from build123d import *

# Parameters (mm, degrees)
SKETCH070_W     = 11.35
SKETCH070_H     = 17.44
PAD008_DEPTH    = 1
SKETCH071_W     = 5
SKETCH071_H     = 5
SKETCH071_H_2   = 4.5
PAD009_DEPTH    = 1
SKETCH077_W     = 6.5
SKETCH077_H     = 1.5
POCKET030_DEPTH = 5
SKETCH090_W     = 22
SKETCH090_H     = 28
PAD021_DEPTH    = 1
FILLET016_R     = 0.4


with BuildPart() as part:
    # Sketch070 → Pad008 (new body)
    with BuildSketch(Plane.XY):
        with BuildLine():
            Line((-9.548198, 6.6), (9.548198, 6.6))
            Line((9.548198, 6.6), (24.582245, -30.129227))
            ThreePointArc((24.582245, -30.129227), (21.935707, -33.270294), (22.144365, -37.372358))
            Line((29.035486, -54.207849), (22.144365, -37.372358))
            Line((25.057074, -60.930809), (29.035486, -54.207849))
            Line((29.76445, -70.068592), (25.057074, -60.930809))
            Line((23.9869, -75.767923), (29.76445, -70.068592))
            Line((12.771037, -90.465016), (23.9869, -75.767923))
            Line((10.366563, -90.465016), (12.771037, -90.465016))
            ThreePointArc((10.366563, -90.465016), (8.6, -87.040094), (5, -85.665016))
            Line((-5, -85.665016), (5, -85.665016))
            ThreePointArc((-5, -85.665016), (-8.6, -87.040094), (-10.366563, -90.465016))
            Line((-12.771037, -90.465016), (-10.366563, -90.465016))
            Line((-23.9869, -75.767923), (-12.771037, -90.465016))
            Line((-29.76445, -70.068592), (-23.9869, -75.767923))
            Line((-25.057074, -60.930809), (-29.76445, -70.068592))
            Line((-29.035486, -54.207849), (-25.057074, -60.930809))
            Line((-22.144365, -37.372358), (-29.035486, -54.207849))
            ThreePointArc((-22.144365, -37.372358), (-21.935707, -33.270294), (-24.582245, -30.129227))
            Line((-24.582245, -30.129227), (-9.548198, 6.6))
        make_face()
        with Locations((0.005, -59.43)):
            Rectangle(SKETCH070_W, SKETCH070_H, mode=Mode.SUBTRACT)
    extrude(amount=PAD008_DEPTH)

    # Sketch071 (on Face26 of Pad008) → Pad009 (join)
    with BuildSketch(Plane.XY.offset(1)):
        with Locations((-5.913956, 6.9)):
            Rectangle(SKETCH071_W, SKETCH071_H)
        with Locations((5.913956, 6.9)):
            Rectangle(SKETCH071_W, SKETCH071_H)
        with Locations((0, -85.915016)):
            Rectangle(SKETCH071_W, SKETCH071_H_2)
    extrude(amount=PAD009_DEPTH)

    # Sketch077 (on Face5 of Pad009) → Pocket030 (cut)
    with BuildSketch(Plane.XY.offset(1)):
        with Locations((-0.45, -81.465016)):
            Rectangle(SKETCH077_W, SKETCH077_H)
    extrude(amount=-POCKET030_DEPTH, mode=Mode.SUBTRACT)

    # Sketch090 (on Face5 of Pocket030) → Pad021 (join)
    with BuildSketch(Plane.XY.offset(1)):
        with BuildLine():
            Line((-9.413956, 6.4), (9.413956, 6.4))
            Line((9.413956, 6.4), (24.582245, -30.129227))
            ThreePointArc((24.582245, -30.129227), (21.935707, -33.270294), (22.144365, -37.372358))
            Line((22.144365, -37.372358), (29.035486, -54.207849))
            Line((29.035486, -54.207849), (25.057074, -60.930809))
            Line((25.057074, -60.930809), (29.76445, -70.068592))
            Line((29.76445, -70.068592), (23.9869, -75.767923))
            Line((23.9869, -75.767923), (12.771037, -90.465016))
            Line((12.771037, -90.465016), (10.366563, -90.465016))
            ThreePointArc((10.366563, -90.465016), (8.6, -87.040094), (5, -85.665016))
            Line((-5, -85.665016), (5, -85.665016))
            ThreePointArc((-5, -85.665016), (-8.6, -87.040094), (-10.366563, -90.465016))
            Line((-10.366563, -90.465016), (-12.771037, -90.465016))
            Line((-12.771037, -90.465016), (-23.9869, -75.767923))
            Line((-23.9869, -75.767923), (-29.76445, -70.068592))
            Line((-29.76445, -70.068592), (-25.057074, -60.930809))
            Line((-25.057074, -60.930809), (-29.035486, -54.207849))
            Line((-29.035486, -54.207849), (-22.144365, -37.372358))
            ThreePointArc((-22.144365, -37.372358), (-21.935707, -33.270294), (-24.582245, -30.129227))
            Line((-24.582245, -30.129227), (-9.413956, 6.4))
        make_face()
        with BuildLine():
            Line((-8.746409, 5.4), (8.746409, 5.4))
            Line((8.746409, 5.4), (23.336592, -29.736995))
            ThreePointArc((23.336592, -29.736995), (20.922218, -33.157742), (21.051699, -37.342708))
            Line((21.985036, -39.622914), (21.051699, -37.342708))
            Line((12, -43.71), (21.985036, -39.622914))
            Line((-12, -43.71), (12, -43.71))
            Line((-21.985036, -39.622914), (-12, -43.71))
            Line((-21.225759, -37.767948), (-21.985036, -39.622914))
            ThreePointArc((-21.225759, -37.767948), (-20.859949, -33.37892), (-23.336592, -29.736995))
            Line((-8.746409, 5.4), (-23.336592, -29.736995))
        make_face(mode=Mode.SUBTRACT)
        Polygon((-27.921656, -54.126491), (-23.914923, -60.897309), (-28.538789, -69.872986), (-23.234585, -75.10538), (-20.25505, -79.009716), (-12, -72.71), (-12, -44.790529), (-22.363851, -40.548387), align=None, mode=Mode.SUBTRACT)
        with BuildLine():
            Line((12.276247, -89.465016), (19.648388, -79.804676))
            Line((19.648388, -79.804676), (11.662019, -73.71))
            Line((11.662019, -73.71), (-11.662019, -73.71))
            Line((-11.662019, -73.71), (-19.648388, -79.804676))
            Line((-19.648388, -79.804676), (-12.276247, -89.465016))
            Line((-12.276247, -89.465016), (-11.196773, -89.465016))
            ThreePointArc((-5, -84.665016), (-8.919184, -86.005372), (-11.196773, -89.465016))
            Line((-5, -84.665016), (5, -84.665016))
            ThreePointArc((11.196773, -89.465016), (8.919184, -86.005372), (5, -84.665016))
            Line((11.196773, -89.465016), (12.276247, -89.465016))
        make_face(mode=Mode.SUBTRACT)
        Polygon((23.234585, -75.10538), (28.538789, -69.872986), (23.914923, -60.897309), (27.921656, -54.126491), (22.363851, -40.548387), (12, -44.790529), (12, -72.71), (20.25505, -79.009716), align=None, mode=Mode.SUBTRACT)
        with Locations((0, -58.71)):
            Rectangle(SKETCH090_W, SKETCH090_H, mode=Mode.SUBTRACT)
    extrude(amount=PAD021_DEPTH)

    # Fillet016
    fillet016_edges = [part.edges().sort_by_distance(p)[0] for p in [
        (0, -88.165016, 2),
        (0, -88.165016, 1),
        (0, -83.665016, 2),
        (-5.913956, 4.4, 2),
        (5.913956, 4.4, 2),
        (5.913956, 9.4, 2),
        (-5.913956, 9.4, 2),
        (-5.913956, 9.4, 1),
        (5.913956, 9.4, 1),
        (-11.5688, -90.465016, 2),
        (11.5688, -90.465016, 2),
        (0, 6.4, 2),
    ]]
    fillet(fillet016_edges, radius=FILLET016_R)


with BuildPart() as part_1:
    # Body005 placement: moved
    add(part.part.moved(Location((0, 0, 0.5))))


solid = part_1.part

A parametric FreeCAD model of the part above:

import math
import FreeCAD as App
import Part
import Sketcher
Q = App.Units.Quantity


def edges_at(feature, points):
    """Names of the edges that pass closest to the given points."""
    edges = feature.Shape.Edges
    near = lambda p: min(range(len(edges)), key=lambda i: edges[i].distToShape(Part.Vertex(*p))[0])
    return sorted({f"Edge{near(p) + 1}" for p in points})

doc = App.newDocument("Part")
body = doc.addObject("PartDesign::Body", "Body")

# Sketch on XY plane
sketch1 = doc.addObject("Sketcher::SketchObject", "Sketch")
body.addObject(sketch1)
sketch1.AttachmentSupport = (doc.XY_Plane, [""])
sketch1.MapMode = "FlatFace"
sketch1.addGeometry(Part.LineSegment(App.Vector(9.548198, 6.6, 0), App.Vector(-9.548198, 6.6, 0)), False)
sketch1.addGeometry(Part.LineSegment(App.Vector(-9.548198, 6.6, 0), App.Vector(-24.582245, -30.129227, 0)), False)
sketch1.addGeometry(Part.ArcOfCircle(Part.Circle(App.Vector(-27.243144, -35.056662, 0), App.Vector(0, 0, 1), 5.6), math.radians(-24.425975), math.radians(61.630197)), False)
sketch1.addGeometry(Part.LineSegment(App.Vector(-22.144365, -37.372358, 0), App.Vector(-29.035486, -54.207849, 0)), False)
sketch1.addGeometry(Part.LineSegment(App.Vector(-29.035486, -54.207849, 0), App.Vector(-25.057074, -60.930809, 0)), False)
sketch1.addGeometry(Part.LineSegment(App.Vector(-25.057074, -60.930809, 0), App.Vector(-29.76445, -70.068592, 0)), False)
sketch1.addGeometry(Part.LineSegment(App.Vector(-29.76445, -70.068592, 0), App.Vector(-23.9869, -75.767923, 0)), False)
sketch1.addGeometry(Part.LineSegment(App.Vector(-23.9869, -75.767923, 0), App.Vector(-12.771037, -90.465016, 0)), False)
sketch1.addGeometry(Part.LineSegment(App.Vector(-12.771037, -90.465016, 0), App.Vector(-10.366563, -90.465016, 0)), False)
sketch1.addGeometry(Part.ArcOfCircle(Part.Circle(App.Vector(-4.999999, -91.065016, 0), App.Vector(0, 0, 1), 5.4), math.radians(90.000006), math.radians(173.620625)), False)
sketch1.addGeometry(Part.LineSegment(App.Vector(-5, -85.665016, 0), App.Vector(5, -85.665016, 0)), False)
sketch1.addGeometry(Part.ArcOfCircle(Part.Circle(App.Vector(4.999999, -91.065016, 0), App.Vector(0, 0, 1), 5.4), math.radians(6.379375), math.radians(89.999994)), False)
sketch1.addGeometry(Part.LineSegment(App.Vector(10.366563, -90.465016, 0), App.Vector(12.771037, -90.465016, 0)), False)
sketch1.addGeometry(Part.LineSegment(App.Vector(12.771037, -90.465016, 0), App.Vector(23.9869, -75.767923, 0)), False)
sketch1.addGeometry(Part.LineSegment(App.Vector(23.9869, -75.767923, 0), App.Vector(29.76445, -70.068592, 0)), False)
sketch1.addGeometry(Part.LineSegment(App.Vector(29.76445, -70.068592, 0), App.Vector(25.057074, -60.930809, 0)), False)
sketch1.addGeometry(Part.LineSegment(App.Vector(25.057074, -60.930809, 0), App.Vector(29.035486, -54.207849, 0)), False)
sketch1.addGeometry(Part.LineSegment(App.Vector(29.035486, -54.207849, 0), App.Vector(22.144365, -37.372358, 0)), False)
sketch1.addGeometry(Part.ArcOfCircle(Part.Circle(App.Vector(27.243144, -35.056662, 0), App.Vector(0, 0, 1), 5.6), math.radians(118.369803), math.radians(204.425975)), False)
sketch1.addGeometry(Part.LineSegment(App.Vector(24.582245, -30.129227, 0), App.Vector(9.548198, 6.6, 0)), False)
sketch1.addGeometry(Part.LineSegment(App.Vector(-5.67, -68.15, 0), App.Vector(-5.67, -50.71, 0)), False)
sketch1.addGeometry(Part.LineSegment(App.Vector(-5.67, -50.71, 0), App.Vector(5.68, -50.71, 0)), False)
sketch1.addGeometry(Part.LineSegment(App.Vector(5.68, -50.71, 0), App.Vector(5.68, -68.15, 0)), False)
sketch1.addGeometry(Part.LineSegment(App.Vector(5.68, -68.15, 0), App.Vector(-5.67, -68.15, 0)), False)
sketch1.addConstraint(Sketcher.Constraint("Coincident", 0, 2, 1, 1))
sketch1.addConstraint(Sketcher.Constraint("Coincident", 1, 2, 2, 2))
sketch1.addConstraint(Sketcher.Constraint("Coincident", 2, 1, 3, 1))
sketch1.addConstraint(Sketcher.Constraint("Coincident", 3, 2, 4, 1))
sketch1.addConstraint(Sketcher.Constraint("Coincident", 4, 2, 5, 1))
sketch1.addConstraint(Sketcher.Constraint("Coincident", 5, 2, 6, 1))
sketch1.addConstraint(Sketcher.Constraint("Coincident", 6, 2, 7, 1))
sketch1.addConstraint(Sketcher.Constraint("Coincident", 7, 2, 8, 1))
sketch1.addConstraint(Sketcher.Constraint("Coincident", 8, 2, 9, 2))
sketch1.addConstraint(Sketcher.Constraint("Tangent", 9, 1, 10, 1))
sketch1.addConstraint(Sketcher.Constraint("Tangent", 10, 2, 11, 2))
sketch1.addConstraint(Sketcher.Constraint("Coincident", 11, 1, 12, 1))
sketch1.addConstraint(Sketcher.Constraint("Coincident", 12, 2, 13, 1))
sketch1.addConstraint(Sketcher.Constraint("Coincident", 13, 2, 14, 1))
sketch1.addConstraint(Sketcher.Constraint("Coincident", 14, 2, 15, 1))
sketch1.addConstraint(Sketcher.Constraint("Coincident", 15, 2, 16, 1))
sketch1.addConstraint(Sketcher.Constraint("Coincident", 16, 2, 17, 1))
sketch1.addConstraint(Sketcher.Constraint("Coincident", 17, 2, 18, 2))
sketch1.addConstraint(Sketcher.Constraint("Coincident", 18, 1, 19, 1))
sketch1.addConstraint(Sketcher.Constraint("Coincident", 19, 2, 0, 1))
sketch1.addConstraint(Sketcher.Constraint("Coincident", 20, 2, 21, 1))
sketch1.addConstraint(Sketcher.Constraint("Coincident", 21, 2, 22, 1))
sketch1.addConstraint(Sketcher.Constraint("Coincident", 22, 2, 23, 1))
sketch1.addConstraint(Sketcher.Constraint("Coincident", 23, 2, 20, 1))
sketch1.addConstraint(Sketcher.Constraint("Horizontal", 0))
sketch1.addConstraint(Sketcher.Constraint("Horizontal", 8))
sketch1.addConstraint(Sketcher.Constraint("Horizontal", 10))
sketch1.addConstraint(Sketcher.Constraint("Horizontal", 12))
sketch1.addConstraint(Sketcher.Constraint("Vertical", 20))
sketch1.addConstraint(Sketcher.Constraint("Horizontal", 21))
sketch1.addConstraint(Sketcher.Constraint("Vertical", 22))
sketch1.addConstraint(Sketcher.Constraint("Horizontal", 23))
sketch1.addConstraint(Sketcher.Constraint("Equal", 9, 11))
sketch1.addConstraint(Sketcher.Constraint("Equal", 2, 18))
sketch1.addConstraint(Sketcher.Constraint("Symmetric", 2, 3, 18, 3, -2))
sketch1.addConstraint(Sketcher.Constraint("Symmetric", 8, 2, 11, 1, -2))
sketch1.addConstraint(Sketcher.Constraint("Symmetric", 6, 2, 13, 2, -2))
sketch1.addConstraint(Sketcher.Constraint("Symmetric", 5, 2, 14, 2, -2))
sketch1.addConstraint(Sketcher.Constraint("Symmetric", 4, 2, 15, 2, -2))
sketch1.addConstraint(Sketcher.Constraint("Symmetric", 3, 2, 16, 2, -2))
sketch1.addConstraint(Sketcher.Constraint("Parallel", 1, 3))
sketch1.addConstraint(Sketcher.Constraint("Parallel", 17, 19))
sketch1.addConstraint(Sketcher.Constraint("Horizontal", 2, 1, 17, 2))
sketch1.addConstraint(Sketcher.Constraint("Horizontal", 1, 2, 18, 1))
sketch1.addConstraint(Sketcher.Constraint("Equal", 8, 12))
sketch1.addConstraint(Sketcher.Constraint("Radius", 2, Q("5.6 mm")))
sketch1.addConstraint(Sketcher.Constraint("Radius", 9, Q("5.4 mm")))
sketch1.addConstraint(Sketcher.Constraint("DistanceX", 10, 1, 10, 2, Q("10 mm")))
sketch1.addConstraint(Sketcher.Constraint("DistanceX", 21, 1, 21, 2, Q("11.35 mm")))
sketch1.addConstraint(Sketcher.Constraint("DistanceY", 20, 1, 20, 2, Q("17.44 mm")))
sketch1.addConstraint(Sketcher.Constraint("DistanceY", -1, 1, 0, 2, Q("6.6 mm")))
sketch1.addConstraint(Sketcher.Constraint("DistanceY", 9, 3, 7, 2, Q("0.6 mm")))
sketch1.addConstraint(Sketcher.Constraint("DistanceX", 20, 2, -1, 1, Q("5.67 mm")))
sketch1.addConstraint(Sketcher.Constraint("DistanceY", 20, 2, -1, 1, Q("50.71 mm")))
sketch1.addConstraint(Sketcher.Constraint("DistanceX", 6, 2, -1, 1, Q("23.9869 mm")))
sketch1.addConstraint(Sketcher.Constraint("DistanceX", 0, 2, 9, 3, Q("4.548199 mm")))
sketch1.addConstraint(Sketcher.Constraint("DistanceX", 2, 3, 1, 2, Q("2.660899 mm")))
sketch1.addConstraint(Sketcher.Constraint("Distance", 1, Q("39.687009 mm")))
sketch1.addConstraint(Sketcher.Constraint("Distance", 4, Q("7.811911 mm")))
sketch1.addConstraint(Sketcher.Constraint("Distance", 5, Q("10.27903 mm")))
sketch1.addConstraint(Sketcher.Constraint("Distance", 6, Q("8.115569 mm")))
sketch1.addConstraint(Sketcher.Constraint("DistanceX", 8, 1, 8, 2, Q("2.404474 mm")))
sketch1.addConstraint(Sketcher.Constraint("DistanceY", 2, 3, -1, 1, Q("35.056662 mm")))
sketch1.addConstraint(Sketcher.Constraint("DistanceY", 2, 1, -1, 1, Q("37.372358 mm")))
sketch1.addConstraint(Sketcher.Constraint("DistanceY", 3, 2, -1, 1, Q("54.207849 mm")))
sketch1.addConstraint(Sketcher.Constraint("DistanceY", 4, 2, -1, 1, Q("60.930809 mm")))
sketch1.addConstraint(Sketcher.Constraint("DistanceX", 5, 2, -1, 1, Q("29.76445 mm")))
sketch1.addConstraint(Sketcher.Constraint("DistanceY", 9, 3, 1, 2, Q("60.935789 mm")))
pad1 = doc.addObject("PartDesign::Pad", "Pad")
body.addObject(pad1)
pad1.Profile = sketch1
pad1.Length = 1

# Sketch on XY plane
sketch2 = doc.addObject("Sketcher::SketchObject", "Sketch001")
body.addObject(sketch2)
sketch2.AttachmentSupport = (doc.XY_Plane, [""])
sketch2.MapMode = "FlatFace"
sketch2.AttachmentOffset = App.Placement(App.Vector(0, 0, 1), App.Rotation())
sketch2.addGeometry(Part.LineSegment(App.Vector(-8.413956, 9.4, 0), App.Vector(-8.413956, 4.4, 0)), False)
sketch2.addGeometry(Part.LineSegment(App.Vector(-8.413956, 4.4, 0), App.Vector(-3.413956, 4.4, 0)), False)
sketch2.addGeometry(Part.LineSegment(App.Vector(-3.413956, 4.4, 0), App.Vector(-3.413956, 9.4, 0)), False)
sketch2.addGeometry(Part.LineSegment(App.Vector(-3.413956, 9.4, 0), App.Vector(-8.413956, 9.4, 0)), False)
sketch2.addGeometry(Part.LineSegment(App.Vector(3.413956, 9.4, 0), App.Vector(3.413956, 4.4, 0)), False)
sketch2.addGeometry(Part.LineSegment(App.Vector(3.413956, 4.4, 0), App.Vector(8.413956, 4.4, 0)), False)
sketch2.addGeometry(Part.LineSegment(App.Vector(8.413956, 4.4, 0), App.Vector(8.413956, 9.4, 0)), False)
sketch2.addGeometry(Part.LineSegment(App.Vector(8.413956, 9.4, 0), App.Vector(3.413956, 9.4, 0)), False)
sketch2.addGeometry(Part.LineSegment(App.Vector(-2.5, -83.665016, 0), App.Vector(-2.5, -88.165016, 0)), False)
sketch2.addGeometry(Part.LineSegment(App.Vector(-2.5, -88.165016, 0), App.Vector(2.5, -88.165016, 0)), False)
sketch2.addGeometry(Part.LineSegment(App.Vector(2.5, -88.165016, 0), App.Vector(2.5, -83.665016, 0)), False)
sketch2.addGeometry(Part.LineSegment(App.Vector(2.5, -83.665016, 0), App.Vector(-2.5, -83.665016, 0)), False)
sketch2.addConstraint(Sketcher.Constraint("Coincident", 0, 2, 1, 1))
sketch2.addConstraint(Sketcher.Constraint("Coincident", 1, 2, 2, 1))
sketch2.addConstraint(Sketcher.Constraint("Coincident", 2, 2, 3, 1))
sketch2.addConstraint(Sketcher.Constraint("Coincident", 3, 2, 0, 1))
sketch2.addConstraint(Sketcher.Constraint("Coincident", 4, 2, 5, 1))
sketch2.addConstraint(Sketcher.Constraint("Coincident", 5, 2, 6, 1))
sketch2.addConstraint(Sketcher.Constraint("Coincident", 6, 2, 7, 1))
sketch2.addConstraint(Sketcher.Constraint("Coincident", 7, 2, 4, 1))
sketch2.addConstraint(Sketcher.Constraint("Coincident", 8, 2, 9, 1))
sketch2.addConstraint(Sketcher.Constraint("Coincident", 9, 2, 10, 1))
sketch2.addConstraint(Sketcher.Constraint("Coincident", 10, 2, 11, 1))
sketch2.addConstraint(Sketcher.Constraint("Coincident", 11, 2, 8, 1))
sketch2.addConstraint(Sketcher.Constraint("Vertical", 0))
sketch2.addConstraint(Sketcher.Constraint("Horizontal", 1))
sketch2.addConstraint(Sketcher.Constraint("Vertical", 2))
sketch2.addConstraint(Sketcher.Constraint("Horizontal", 3))
sketch2.addConstraint(Sketcher.Constraint("Vertical", 4))
sketch2.addConstraint(Sketcher.Constraint("Horizontal", 5))
sketch2.addConstraint(Sketcher.Constraint("Vertical", 6))
sketch2.addConstraint(Sketcher.Constraint("Horizontal", 7))
sketch2.addConstraint(Sketcher.Constraint("Vertical", 8))
sketch2.addConstraint(Sketcher.Constraint("Horizontal", 9))
sketch2.addConstraint(Sketcher.Constraint("Vertical", 10))
sketch2.addConstraint(Sketcher.Constraint("Horizontal", 11))
sketch2.addConstraint(Sketcher.Constraint("Symmetric", 1, 2, 4, 2, -2))
sketch2.addConstraint(Sketcher.Constraint("Symmetric", 3, 2, 6, 2, -2))
sketch2.addConstraint(Sketcher.Constraint("Equal", 7, 9))
sketch2.addConstraint(Sketcher.Constraint("Equal", 11, 0))
sketch2.addConstraint(Sketcher.Constraint("DistanceX", 1, 1, 1, 2, Q("5 mm")))
sketch2.addConstraint(Sketcher.Constraint("DistanceY", 8, 2, 8, 1, Q("4.5 mm")))
sketch2.addConstraint(Sketcher.Constraint("DistanceY", -1, 1, 0, 2, Q("4.4 mm")))
sketch2.addConstraint(Sketcher.Constraint("DistanceX", 8, 2, -1, 1, Q("2.5 mm")))
sketch2.addConstraint(Sketcher.Constraint("DistanceX", 0, 2, -1, 1, Q("8.413956 mm")))
sketch2.addConstraint(Sketcher.Constraint("DistanceY", 8, 2, -1, 1, Q("88.165016 mm")))
pad2 = doc.addObject("PartDesign::Pad", "Pad001")
body.addObject(pad2)
pad2.Profile = sketch2
pad2.Length = 1

# Sketch on XY plane
sketch3 = doc.addObject("Sketcher::SketchObject", "Sketch002")
body.addObject(sketch3)
sketch3.AttachmentSupport = (doc.XY_Plane, [""])
sketch3.MapMode = "FlatFace"
sketch3.AttachmentOffset = App.Placement(App.Vector(0, 0, 1), App.Rotation())
sketch3.addGeometry(Part.LineSegment(App.Vector(-3.7, -80.715016, 0), App.Vector(-3.7, -82.215016, 0)), False)
sketch3.addGeometry(Part.LineSegment(App.Vector(-3.7, -82.215016, 0), App.Vector(2.8, -82.215016, 0)), False)
sketch3.addGeometry(Part.LineSegment(App.Vector(2.8, -82.215016, 0), App.Vector(2.8, -80.715016, 0)), False)
sketch3.addGeometry(Part.LineSegment(App.Vector(2.8, -80.715016, 0), App.Vector(-3.7, -80.715016, 0)), False)
sketch3.addConstraint(Sketcher.Constraint("Coincident", 0, 2, 1, 1))
sketch3.addConstraint(Sketcher.Constraint("Coincident", 1, 2, 2, 1))
sketch3.addConstraint(Sketcher.Constraint("Coincident", 2, 2, 3, 1))
sketch3.addConstraint(Sketcher.Constraint("Coincident", 3, 2, 0, 1))
sketch3.addConstraint(Sketcher.Constraint("Vertical", 0))
sketch3.addConstraint(Sketcher.Constraint("Horizontal", 1))
sketch3.addConstraint(Sketcher.Constraint("Vertical", 2))
sketch3.addConstraint(Sketcher.Constraint("Horizontal", 3))
sketch3.addConstraint(Sketcher.Constraint("DistanceX", 1, 1, 1, 2, Q("6.5 mm")))
sketch3.addConstraint(Sketcher.Constraint("DistanceY", 0, 2, 0, 1, Q("1.5 mm")))
sketch3.addConstraint(Sketcher.Constraint("DistanceX", 0, 2, -1, 1, Q("3.7 mm")))
sketch3.addConstraint(Sketcher.Constraint("DistanceY", 0, 2, -1, 1, Q("82.215016 mm")))
pocket1 = doc.addObject("PartDesign::Pocket", "Pocket")
body.addObject(pocket1)
pocket1.Profile = sketch3
pocket1.Length = 5

# Sketch on XY plane
sketch4 = doc.addObject("Sketcher::SketchObject", "Sketch003")
body.addObject(sketch4)
sketch4.AttachmentSupport = (doc.XY_Plane, [""])
sketch4.MapMode = "FlatFace"
sketch4.AttachmentOffset = App.Placement(App.Vector(0, 0, 1), App.Rotation())
sketch4.addGeometry(Part.LineSegment(App.Vector(9.413956, 6.4, 0), App.Vector(-9.413956, 6.4, 0)), False)
sketch4.addGeometry(Part.LineSegment(App.Vector(-9.413956, 6.4, 0), App.Vector(-24.582245, -30.129227, 0)), False)
sketch4.addGeometry(Part.ArcOfCircle(Part.Circle(App.Vector(-27.243144, -35.056662, 0), App.Vector(0, 0, 1), 5.6), math.radians(-24.425975), math.radians(61.630197)), False)
sketch4.addGeometry(Part.LineSegment(App.Vector(-22.144365, -37.372358, 0), App.Vector(-29.035486, -54.207849, 0)), False)
sketch4.addGeometry(Part.LineSegment(App.Vector(-29.035486, -54.207849, 0), App.Vector(-25.057074, -60.930809, 0)), False)
sketch4.addGeometry(Part.LineSegment(App.Vector(-25.057074, -60.930809, 0), App.Vector(-29.76445, -70.068592, 0)), False)
sketch4.addGeometry(Part.LineSegment(App.Vector(-29.76445, -70.068592, 0), App.Vector(-23.9869, -75.767923, 0)), False)
sketch4.addGeometry(Part.LineSegment(App.Vector(-23.9869, -75.767923, 0), App.Vector(-12.771037, -90.465016, 0)), False)
sketch4.addGeometry(Part.LineSegment(App.Vector(-12.771037, -90.465016, 0), App.Vector(-10.366563, -90.465016, 0)), False)
sketch4.addGeometry(Part.ArcOfCircle(Part.Circle(App.Vector(-4.999999, -91.065016, 0), App.Vector(0, 0, 1), 5.4), math.radians(90.000006), math.radians(173.620625)), False)
sketch4.addGeometry(Part.LineSegment(App.Vector(-5, -85.665016, 0), App.Vector(5, -85.665016, 0)), False)
sketch4.addGeometry(Part.ArcOfCircle(Part.Circle(App.Vector(4.999999, -91.065016, 0), App.Vector(0, 0, 1), 5.4), math.radians(6.379375), math.radians(89.999994)), False)
sketch4.addGeometry(Part.LineSegment(App.Vector(10.366563, -90.465016, 0), App.Vector(12.771037, -90.465016, 0)), False)
sketch4.addGeometry(Part.LineSegment(App.Vector(12.771037, -90.465016, 0), App.Vector(23.9869, -75.767923, 0)), False)
sketch4.addGeometry(Part.LineSegment(App.Vector(23.9869, -75.767923, 0), App.Vector(29.76445, -70.068592, 0)), False)
sketch4.addGeometry(Part.LineSegment(App.Vector(29.76445, -70.068592, 0), App.Vector(25.057074, -60.930809, 0)), False)
sketch4.addGeometry(Part.LineSegment(App.Vector(25.057074, -60.930809, 0), App.Vector(29.035486, -54.207849, 0)), False)
sketch4.addGeometry(Part.LineSegment(App.Vector(29.035486, -54.207849, 0), App.Vector(22.144365, -37.372358, 0)), False)
sketch4.addGeometry(Part.ArcOfCircle(Part.Circle(App.Vector(27.243144, -35.056662, 0), App.Vector(0, 0, 1), 5.6), math.radians(118.369803), math.radians(204.425975)), False)
sketch4.addGeometry(Part.LineSegment(App.Vector(24.582245, -30.129227, 0), App.Vector(9.413956, 6.4, 0)), False)
sketch4.addGeometry(Part.LineSegment(App.Vector(23.234585, -75.10538, 0), App.Vector(20.25505, -79.009716, 0)), False)
sketch4.addGeometry(Part.LineSegment(App.Vector(20.25505, -79.009716, 0), App.Vector(12, -72.71, 0)), False)
sketch4.addGeometry(Part.LineSegment(App.Vector(12, -72.71, 0), App.Vector(12, -44.790529, 0)), False)
sketch4.addGeometry(Part.LineSegment(App.Vector(12, -44.790529, 0), App.Vector(22.363851, -40.548387, 0)), False)
sketch4.addGeometry(Part.LineSegment(App.Vector(22.363851, -40.548387, 0), App.Vector(27.921656, -54.126491, 0)), False)
sketch4.addGeometry(Part.LineSegment(App.Vector(27.921656, -54.126491, 0), App.Vector(23.914923, -60.897309, 0)), False)
sketch4.addGeometry(Part.LineSegment(App.Vector(23.914923, -60.897309, 0), App.Vector(28.538789, -69.872986, 0)), False)
sketch4.addGeometry(Part.LineSegment(App.Vector(28.538789, -69.872986, 0), App.Vector(23.234585, -75.10538, 0)), False)
sketch4.addGeometry(Part.LineSegment(App.Vector(12.276247, -89.465016, 0), App.Vector(11.196773, -89.465016, 0)), False)
sketch4.addGeometry(Part.ArcOfCircle(Part.Circle(App.Vector(5, -91.065015, 0), App.Vector(0, 0, 1), 6.399999), math.radians(14.477505), math.radians(90.000004)), False)
sketch4.addGeometry(Part.LineSegment(App.Vector(5, -84.665016, 0), App.Vector(-5, -84.665016, 0)), False)
sketch4.addGeometry(Part.ArcOfCircle(Part.Circle(App.Vector(-5, -91.065015, 0), App.Vector(0, 0, 1), 6.399999), math.radians(89.999996), math.radians(165.522495)), False)
sketch4.addGeometry(Part.LineSegment(App.Vector(-11.196773, -89.465016, 0), App.Vector(-12.276247, -89.465016, 0)), False)
sketch4.addGeometry(Part.LineSegment(App.Vector(-12.276247, -89.465016, 0), App.Vector(-19.648388, -79.804676, 0)), False)
sketch4.addGeometry(Part.LineSegment(App.Vector(-19.648388, -79.804676, 0), App.Vector(-11.662019, -73.71, 0)), False)
sketch4.addGeometry(Part.LineSegment(App.Vector(-11.662019, -73.71, 0), App.Vector(11.662019, -73.71, 0)), False)
sketch4.addGeometry(Part.LineSegment(App.Vector(11.662019, -73.71, 0), App.Vector(19.648388, -79.804676, 0)), False)
sketch4.addGeometry(Part.LineSegment(App.Vector(19.648388, -79.804676, 0), App.Vector(12.276247, -89.465016, 0)), False)
sketch4.addGeometry(Part.LineSegment(App.Vector(-11, -72.71, 0), App.Vector(-11, -44.71, 0)), False)
sketch4.addGeometry(Part.LineSegment(App.Vector(-11, -44.71, 0), App.Vector(11, -44.71, 0)), False)
sketch4.addGeometry(Part.LineSegment(App.Vector(11, -44.71, 0), App.Vector(11, -72.71, 0)), False)
sketch4.addGeometry(Part.LineSegment(App.Vector(11, -72.71, 0), App.Vector(-11, -72.71, 0)), False)
sketch4.addGeometry(Part.LineSegment(App.Vector(-27.921656, -54.126491, 0), App.Vector(-22.363851, -40.548387, 0)), False)
sketch4.addGeometry(Part.LineSegment(App.Vector(-22.363851, -40.548387, 0), App.Vector(-12, -44.790529, 0)), False)
sketch4.addGeometry(Part.LineSegment(App.Vector(-12, -44.790529, 0), App.Vector(-12, -72.71, 0)), False)
sketch4.addGeometry(Part.LineSegment(App.Vector(-12, -72.71, 0), App.Vector(-20.25505, -79.009716, 0)), False)
sketch4.addGeometry(Part.LineSegment(App.Vector(-20.25505, -79.009716, 0), App.Vector(-23.234585, -75.10538, 0)), False)
sketch4.addGeometry(Part.LineSegment(App.Vector(-23.234585, -75.10538, 0), App.Vector(-28.538789, -69.872986, 0)), False)
sketch4.addGeometry(Part.LineSegment(App.Vector(-28.538789, -69.872986, 0), App.Vector(-23.914923, -60.897309, 0)), False)
sketch4.addGeometry(Part.LineSegment(App.Vector(-23.914923, -60.897309, 0), App.Vector(-27.921656, -54.126491, 0)), False)
sketch4.addGeometry(Part.LineSegment(App.Vector(-8.746409, 5.4, 0), App.Vector(8.746409, 5.4, 0)), False)
sketch4.addGeometry(Part.LineSegment(App.Vector(8.746409, 5.4, 0), App.Vector(23.336592, -29.736995, 0)), False)
sketch4.addGeometry(Part.ArcOfCircle(Part.Circle(App.Vector(27.243144, -35.056661, 0), App.Vector(0, 0, 1), 6.6), math.radians(126.292082), math.radians(200.265491)), False)
sketch4.addGeometry(Part.LineSegment(App.Vector(21.051699, -37.342708, 0), App.Vector(21.985036, -39.622914, 0)), False)
sketch4.addGeometry(Part.LineSegment(App.Vector(21.985036, -39.622914, 0), App.Vector(12, -43.71, 0)), False)
sketch4.addGeometry(Part.LineSegment(App.Vector(12, -43.71, 0), App.Vector(-12, -43.71, 0)), False)
sketch4.addGeometry(Part.LineSegment(App.Vector(-12, -43.71, 0), App.Vector(-21.985036, -39.622914, 0)), False)
sketch4.addGeometry(Part.LineSegment(App.Vector(-21.985036, -39.622914, 0), App.Vector(-21.225759, -37.767948, 0)), False)
sketch4.addGeometry(Part.ArcOfCircle(Part.Circle(App.Vector(-27.243145, -35.056662, 0), App.Vector(0, 0, 1), 6.600001), math.radians(-24.255157), math.radians(53.707909)), False)
sketch4.addGeometry(Part.LineSegment(App.Vector(-23.336592, -29.736995, 0), App.Vector(-8.746409, 5.4, 0)), False)
sketch4.addConstraint(Sketcher.Constraint("Coincident", 0, 2, 1, 1))
sketch4.addConstraint(Sketcher.Constraint("Coincident", 1, 2, 2, 2))
sketch4.addConstraint(Sketcher.Constraint("Coincident", 2, 1, 3, 1))
sketch4.addConstraint(Sketcher.Constraint("Coincident", 3, 2, 4, 1))
sketch4.addConstraint(Sketcher.Constraint("Coincident", 4, 2, 5, 1))
sketch4.addConstraint(Sketcher.Constraint("Coincident", 5, 2, 6, 1))
sketch4.addConstraint(Sketcher.Constraint("Coincident", 6, 2, 7, 1))
sketch4.addConstraint(Sketcher.Constraint("Coincident", 7, 2, 8, 1))
sketch4.addConstraint(Sketcher.Constraint("Coincident", 8, 2, 9, 2))
sketch4.addConstraint(Sketcher.Constraint("Tangent", 9, 1, 10, 1))
sketch4.addConstraint(Sketcher.Constraint("Tangent", 10, 2, 11, 2))
sketch4.addConstraint(Sketcher.Constraint("Coincident", 11, 1, 12, 1))
sketch4.addConstraint(Sketcher.Constraint("Coincident", 12, 2, 13, 1))
sketch4.addConstraint(Sketcher.Constraint("Coincident", 13, 2, 14, 1))
sketch4.addConstraint(Sketcher.Constraint("Coincident", 14, 2, 15, 1))
sketch4.addConstraint(Sketcher.Constraint("Coincident", 15, 2, 16, 1))
sketch4.addConstraint(Sketcher.Constraint("Coincident", 16, 2, 17, 1))
sketch4.addConstraint(Sketcher.Constraint("Coincident", 17, 2, 18, 2))
sketch4.addConstraint(Sketcher.Constraint("Coincident", 18, 1, 19, 1))
sketch4.addConstraint(Sketcher.Constraint("Coincident", 19, 2, 0, 1))
sketch4.addConstraint(Sketcher.Constraint("Coincident", 20, 2, 21, 1))
sketch4.addConstraint(Sketcher.Constraint("Coincident", 21, 2, 22, 1))
sketch4.addConstraint(Sketcher.Constraint("Coincident", 22, 2, 23, 1))
sketch4.addConstraint(Sketcher.Constraint("Coincident", 23, 2, 24, 1))
sketch4.addConstraint(Sketcher.Constraint("Coincident", 24, 2, 25, 1))
sketch4.addConstraint(Sketcher.Constraint("Coincident", 25, 2, 26, 1))
sketch4.addConstraint(Sketcher.Constraint("Coincident", 26, 2, 27, 1))
sketch4.addConstraint(Sketcher.Constraint("Coincident", 27, 2, 20, 1))
sketch4.addConstraint(Sketcher.Constraint("Coincident", 28, 2, 29, 1))
sketch4.addConstraint(Sketcher.Constraint("Tangent", 29, 2, 30, 1))
sketch4.addConstraint(Sketcher.Constraint("Tangent", 30, 2, 31, 1))
sketch4.addConstraint(Sketcher.Constraint("Coincident", 31, 2, 32, 1))
sketch4.addConstraint(Sketcher.Constraint("Coincident", 32, 2, 33, 1))
sketch4.addConstraint(Sketcher.Constraint("Coincident", 33, 2, 34, 1))
sketch4.addConstraint(Sketcher.Constraint("Coincident", 34, 2, 35, 1))
sketch4.addConstraint(Sketcher.Constraint("Coincident", 35, 2, 36, 1))
sketch4.addConstraint(Sketcher.Constraint("Coincident", 36, 2, 37, 1))
sketch4.addConstraint(Sketcher.Constraint("Coincident", 37, 2, 28, 1))
sketch4.addConstraint(Sketcher.Constraint("Coincident", 38, 2, 39, 1))
sketch4.addConstraint(Sketcher.Constraint("Coincident", 39, 2, 40, 1))
sketch4.addConstraint(Sketcher.Constraint("Coincident", 40, 2, 41, 1))
sketch4.addConstraint(Sketcher.Constraint("Coincident", 41, 2, 38, 1))
sketch4.addConstraint(Sketcher.Constraint("Coincident", 42, 2, 43, 1))
sketch4.addConstraint(Sketcher.Constraint("Coincident", 43, 2, 44, 1))
sketch4.addConstraint(Sketcher.Constraint("Coincident", 44, 2, 45, 1))
sketch4.addConstraint(Sketcher.Constraint("Coincident", 45, 2, 46, 1))
sketch4.addConstraint(Sketcher.Constraint("Coincident", 46, 2, 47, 1))
sketch4.addConstraint(Sketcher.Constraint("Coincident", 47, 2, 48, 1))
sketch4.addConstraint(Sketcher.Constraint("Coincident", 48, 2, 49, 1))
sketch4.addConstraint(Sketcher.Constraint("Coincident", 49, 2, 42, 1))
sketch4.addConstraint(Sketcher.Constraint("Coincident", 50, 2, 51, 1))
sketch4.addConstraint(Sketcher.Constraint("Coincident", 51, 2, 52, 1))
sketch4.addConstraint(Sketcher.Constraint("Coincident", 52, 2, 53, 1))
sketch4.addConstraint(Sketcher.Constraint("Coincident", 53, 2, 54, 1))
sketch4.addConstraint(Sketcher.Constraint("Coincident", 54, 2, 55, 1))
sketch4.addConstraint(Sketcher.Constraint("Coincident", 55, 2, 56, 1))
sketch4.addConstraint(Sketcher.Constraint("Coincident", 56, 2, 57, 1))
sketch4.addConstraint(Sketcher.Constraint("Coincident", 57, 2, 58, 1))
sketch4.addConstraint(Sketcher.Constraint("Coincident", 58, 2, 59, 1))
sketch4.addConstraint(Sketcher.Constraint("Coincident", 59, 2, 50, 1))
sketch4.addConstraint(Sketcher.Constraint("Horizontal", 0))
sketch4.addConstraint(Sketcher.Constraint("Horizontal", 8))
sketch4.addConstraint(Sketcher.Constraint("Horizontal", 10))
sketch4.addConstraint(Sketcher.Constraint("Horizontal", 12))
sketch4.addConstraint(Sketcher.Constraint("Vertical", 22))
sketch4.addConstraint(Sketcher.Constraint("Horizontal", 28))
sketch4.addConstraint(Sketcher.Constraint("Horizontal", 30))
sketch4.addConstraint(Sketcher.Constraint("Horizontal", 32))
sketch4.addConstraint(Sketcher.Constraint("Horizontal", 35))
sketch4.addConstraint(Sketcher.Constraint("Vertical", 38))
sketch4.addConstraint(Sketcher.Constraint("Horizontal", 39))
sketch4.addConstraint(Sketcher.Constraint("Vertical", 40))
sketch4.addConstraint(Sketcher.Constraint("Horizontal", 41))
sketch4.addConstraint(Sketcher.Constraint("Vertical", 44))
sketch4.addConstraint(Sketcher.Constraint("Horizontal", 50))
sketch4.addConstraint(Sketcher.Constraint("Horizontal", 55))
sketch4.addConstraint(Sketcher.Constraint("Coincident", 29, 3, 11, 3))
sketch4.addConstraint(Sketcher.Constraint("Coincident", 31, 3, 9, 3))
sketch4.addConstraint(Sketcher.Constraint("Coincident", 52, 3, 18, 3))
sketch4.addConstraint(Sketcher.Constraint("Coincident", 58, 3, 2, 3))
sketch4.addConstraint(Sketcher.Constraint("Equal", 9, 11))
sketch4.addConstraint(Sketcher.Constraint("Equal", 2, 18))
sketch4.addConstraint(Sketcher.Constraint("Equal", 52, 58))
sketch4.addConstraint(Sketcher.Constraint("Symmetric", 2, 3, 18, 3, -2))
sketch4.addConstraint(Sketcher.Constraint("Symmetric", 8, 2, 11, 1, -2))
sketch4.addConstraint(Sketcher.Constraint("Symmetric", 6, 2, 13, 2, -2))
sketch4.addConstraint(Sketcher.Constraint("Symmetric", 5, 2, 14, 2, -2))
sketch4.addConstraint(Sketcher.Constraint("Symmetric", 4, 2, 15, 2, -2))
sketch4.addConstraint(Sketcher.Constraint("Symmetric", 3, 2, 16, 2, -2))
sketch4.addConstraint(Sketcher.Constraint("Symmetric", 33, 2, 36, 2, -2))
sketch4.addConstraint(Sketcher.Constraint("Symmetric", 32, 2, 37, 2, -2))
sketch4.addConstraint(Sketcher.Constraint("Symmetric", 23, 2, 42, 2, -2))
sketch4.addConstraint(Sketcher.Constraint("Symmetric", 22, 2, 43, 2, -2))
sketch4.addConstraint(Sketcher.Constraint("Symmetric", 20, 2, 45, 2, -2))
sketch4.addConstraint(Sketcher.Constraint("Symmetric", 27, 2, 46, 2, -2))
sketch4.addConstraint(Sketcher.Constraint("Symmetric", 26, 2, 47, 2, -2))
sketch4.addConstraint(Sketcher.Constraint("Symmetric", 25, 2, 48, 2, -2))
sketch4.addConstraint(Sketcher.Constraint("Symmetric", 24, 2, 49, 2, -2))
sketch4.addConstraint(Sketcher.Constraint("Symmetric", 53, 2, 56, 2, -2))
sketch4.addConstraint(Sketcher.Constraint("Parallel", 13, 20))
sketch4.addConstraint(Sketcher.Constraint("Perpendicular", 20, 21))
sketch4.addConstraint(Sketcher.Constraint("Perpendicular", 17, 23))
sketch4.addConstraint(Sketcher.Constraint("Perpendicular", 23, 24))
sketch4.addConstraint(Sketcher.Constraint("Parallel", 16, 25))
sketch4.addConstraint(Sketcher.Constraint("Parallel", 15, 26))
sketch4.addConstraint(Sketcher.Constraint("Parallel", 14, 27))
sketch4.addConstraint(Sketcher.Constraint("Parallel", 7, 33))
sketch4.addConstraint(Sketcher.Constraint("Perpendicular", 33, 34))
sketch4.addConstraint(Sketcher.Constraint("Parallel", 21, 36))
sketch4.addConstraint(Sketcher.Constraint("Perpendicular", 36, 37))
sketch4.addConstraint(Sketcher.Constraint("Parallel", 3, 42))
sketch4.addConstraint(Sketcher.Constraint("Parallel", 34, 45))
sketch4.addConstraint(Sketcher.Constraint("Parallel", 19, 51))
sketch4.addConstraint(Sketcher.Constraint("Parallel", 24, 53))
sketch4.addConstraint(Sketcher.Constraint("Perpendicular", 53, 54))
sketch4.addConstraint(Sketcher.Constraint("Parallel", 43, 56))
sketch4.addConstraint(Sketcher.Constraint("Perpendicular", 56, 57))
sketch4.addConstraint(Sketcher.Constraint("Parallel", 1, 59))
sketch4.addConstraint(Sketcher.Constraint("Horizontal", 1, 2, 18, 1))
sketch4.addConstraint(Sketcher.Constraint("Horizontal", 21, 2, 40, 2))
sketch4.addConstraint(Sketcher.Constraint("Horizontal", 51, 2, 58, 2))
sketch4.addConstraint(Sketcher.Constraint("Vertical", 22, 2, 54, 2))
sketch4.addConstraint(Sketcher.Constraint("Equal", 1, 19))
sketch4.addConstraint(Sketcher.Constraint("Radius", 2, Q("5.6 mm")))
sketch4.addConstraint(Sketcher.Constraint("Radius", 9, Q("5.4 mm")))
sketch4.addConstraint(Sketcher.Constraint("Radius", 29, Q("6.399999 mm")))
sketch4.addConstraint(Sketcher.Constraint("Radius", 52, Q("6.6 mm")))
sketch4.addConstraint(Sketcher.Constraint("DistanceX", 10, 1, 10, 2, Q("10 mm")))
sketch4.addConstraint(Sketcher.Constraint("DistanceX", 39, 1, 39, 2, Q("22 mm")))
sketch4.addConstraint(Sketcher.Constraint("DistanceX", 55, 2, 55, 1, Q("24 mm")))
sketch4.addConstraint(Sketcher.Constraint("DistanceY", 38, 1, 38, 2, Q("28 mm")))
sketch4.addConstraint(Sketcher.Constraint("DistanceX", 38, 2, -1, 1, Q("11 mm")))
sketch4.addConstraint(Sketcher.Constraint("DistanceY", -1, 1, 0, 2, Q("6.4 mm")))
sketch4.addConstraint(Sketcher.Constraint("DistanceY", -1, 1, 50, 2, Q("5.4 mm")))
sketch4.addConstraint(Sketcher.Constraint("DistanceY", 21, 2, -1, 1, Q("72.71 mm")))
sketch4.addConstraint(Sketcher.Constraint("DistanceY", 34, 2, -1, 1, Q("73.71 mm")))
sketch4.addConstraint(Sketcher.Constraint("DistanceY", 54, 2, -1, 1, Q("43.71 mm")))
sketch4.addConstraint(Sketcher.Constraint("DistanceX", 35, 1, 35, 2, Q("23.324038 mm")))
sketch4.addConstraint(Sketcher.Constraint("DistanceX", 50, 1, 50, 2, Q("17.492818 mm")))
sketch4.addConstraint(Sketcher.Constraint("DistanceY", 22, 1, 22, 2, Q("27.919471 mm")))
sketch4.addConstraint(Sketcher.Constraint("DistanceX", 6, 2, -1, 1, Q("23.9869 mm")))
sketch4.addConstraint(Sketcher.Constraint("DistanceX", -1, 1, 52, 2, Q("21.051699 mm")))
sketch4.addConstraint(Sketcher.Constraint("Distance", 4, Q("7.811911 mm")))
sketch4.addConstraint(Sketcher.Constraint("Distance", 5, Q("10.27903 mm")))
sketch4.addConstraint(Sketcher.Constraint("Distance", 6, Q("8.115569 mm")))
sketch4.addConstraint(Sketcher.Constraint("Distance", 20, Q("4.911361 mm")))
sketch4.addConstraint(Sketcher.Constraint("Distance", 21, Q("10.384232 mm")))
sketch4.addConstraint(Sketcher.Constraint("Distance", 24, Q("14.671541 mm")))
sketch4.addConstraint(Sketcher.Constraint("Distance", 25, Q("7.867521 mm")))
sketch4.addConstraint(Sketcher.Constraint("Distance", 26, Q("10.096678 mm")))
sketch4.addConstraint(Sketcher.Constraint("Distance", 33, Q("12.151981 mm")))
sketch4.addConstraint(Sketcher.Constraint("Distance", 34, Q("10.046251 mm")))
sketch4.addConstraint(Sketcher.Constraint("Distance", 53, Q("2.46383 mm")))
sketch4.addConstraint(Sketcher.Constraint("DistanceX", 0, 2, 0, 1, Q("18.827912 mm")))
sketch4.addConstraint(Sketcher.Constraint("DistanceX", 8, 1, 8, 2, Q("2.404474 mm")))
sketch4.addConstraint(Sketcher.Constraint("DistanceX", 28, 2, 28, 1, Q("1.079474 mm")))
sketch4.addConstraint(Sketcher.Constraint("DistanceY", 2, 3, -1, 1, Q("35.056662 mm")))
sketch4.addConstraint(Sketcher.Constraint("DistanceY", 2, 1, -1, 1, Q("37.372358 mm")))
sketch4.addConstraint(Sketcher.Constraint("DistanceY", 3, 2, -1, 1, Q("54.207849 mm")))
sketch4.addConstraint(Sketcher.Constraint("DistanceY", 4, 2, -1, 1, Q("60.930809 mm")))
sketch4.addConstraint(Sketcher.Constraint("DistanceX", 5, 2, -1, 1, Q("29.76445 mm")))
sketch4.addConstraint(Sketcher.Constraint("DistanceY", 5, 2, -1, 1, Q("70.068592 mm")))
sketch4.addConstraint(Sketcher.Constraint("DistanceX", -1, 1, 20, 2, Q("20.25505 mm")))
sketch4.addConstraint(Sketcher.Constraint("DistanceX", -1, 1, 51, 2, Q("23.336592 mm")))
pad3 = doc.addObject("PartDesign::Pad", "Pad002")
body.addObject(pad3)
pad3.Profile = sketch4
pad3.Length = 1
doc.recompute()

fillet = doc.addObject("PartDesign::Fillet", "Fillet")
body.addObject(fillet)
fillet.Base = (pad3, edges_at(pad3, [
    (0, -88.165, 2),
    (0, -88.165, 1),
    (0, -83.665, 2),
    (-5.914, 4.4, 2),
    (5.914, 4.4, 2),
    (5.914, 9.4, 2),
    (-5.914, 9.4, 2),
    (-5.914, 9.4, 1),
    (5.914, 9.4, 1),
    (-11.569, -90.465, 2),
    (11.569, -90.465, 2),
    (0, 6.4, 2),
]))
fillet.Radius = 0.4
body2 = doc.addObject("PartDesign::Body", "Body001")
doc.recompute()

body.Placement = App.Placement(App.Vector(0, 0, 0.5), App.Rotation(App.Vector(0, 0, 1), 0))
boolean = doc.addObject("PartDesign::Boolean", "Boolean")
body2.addObject(boolean)
boolean.Type = "Fuse"
boolean.addObjects([body])

doc.recompute()
